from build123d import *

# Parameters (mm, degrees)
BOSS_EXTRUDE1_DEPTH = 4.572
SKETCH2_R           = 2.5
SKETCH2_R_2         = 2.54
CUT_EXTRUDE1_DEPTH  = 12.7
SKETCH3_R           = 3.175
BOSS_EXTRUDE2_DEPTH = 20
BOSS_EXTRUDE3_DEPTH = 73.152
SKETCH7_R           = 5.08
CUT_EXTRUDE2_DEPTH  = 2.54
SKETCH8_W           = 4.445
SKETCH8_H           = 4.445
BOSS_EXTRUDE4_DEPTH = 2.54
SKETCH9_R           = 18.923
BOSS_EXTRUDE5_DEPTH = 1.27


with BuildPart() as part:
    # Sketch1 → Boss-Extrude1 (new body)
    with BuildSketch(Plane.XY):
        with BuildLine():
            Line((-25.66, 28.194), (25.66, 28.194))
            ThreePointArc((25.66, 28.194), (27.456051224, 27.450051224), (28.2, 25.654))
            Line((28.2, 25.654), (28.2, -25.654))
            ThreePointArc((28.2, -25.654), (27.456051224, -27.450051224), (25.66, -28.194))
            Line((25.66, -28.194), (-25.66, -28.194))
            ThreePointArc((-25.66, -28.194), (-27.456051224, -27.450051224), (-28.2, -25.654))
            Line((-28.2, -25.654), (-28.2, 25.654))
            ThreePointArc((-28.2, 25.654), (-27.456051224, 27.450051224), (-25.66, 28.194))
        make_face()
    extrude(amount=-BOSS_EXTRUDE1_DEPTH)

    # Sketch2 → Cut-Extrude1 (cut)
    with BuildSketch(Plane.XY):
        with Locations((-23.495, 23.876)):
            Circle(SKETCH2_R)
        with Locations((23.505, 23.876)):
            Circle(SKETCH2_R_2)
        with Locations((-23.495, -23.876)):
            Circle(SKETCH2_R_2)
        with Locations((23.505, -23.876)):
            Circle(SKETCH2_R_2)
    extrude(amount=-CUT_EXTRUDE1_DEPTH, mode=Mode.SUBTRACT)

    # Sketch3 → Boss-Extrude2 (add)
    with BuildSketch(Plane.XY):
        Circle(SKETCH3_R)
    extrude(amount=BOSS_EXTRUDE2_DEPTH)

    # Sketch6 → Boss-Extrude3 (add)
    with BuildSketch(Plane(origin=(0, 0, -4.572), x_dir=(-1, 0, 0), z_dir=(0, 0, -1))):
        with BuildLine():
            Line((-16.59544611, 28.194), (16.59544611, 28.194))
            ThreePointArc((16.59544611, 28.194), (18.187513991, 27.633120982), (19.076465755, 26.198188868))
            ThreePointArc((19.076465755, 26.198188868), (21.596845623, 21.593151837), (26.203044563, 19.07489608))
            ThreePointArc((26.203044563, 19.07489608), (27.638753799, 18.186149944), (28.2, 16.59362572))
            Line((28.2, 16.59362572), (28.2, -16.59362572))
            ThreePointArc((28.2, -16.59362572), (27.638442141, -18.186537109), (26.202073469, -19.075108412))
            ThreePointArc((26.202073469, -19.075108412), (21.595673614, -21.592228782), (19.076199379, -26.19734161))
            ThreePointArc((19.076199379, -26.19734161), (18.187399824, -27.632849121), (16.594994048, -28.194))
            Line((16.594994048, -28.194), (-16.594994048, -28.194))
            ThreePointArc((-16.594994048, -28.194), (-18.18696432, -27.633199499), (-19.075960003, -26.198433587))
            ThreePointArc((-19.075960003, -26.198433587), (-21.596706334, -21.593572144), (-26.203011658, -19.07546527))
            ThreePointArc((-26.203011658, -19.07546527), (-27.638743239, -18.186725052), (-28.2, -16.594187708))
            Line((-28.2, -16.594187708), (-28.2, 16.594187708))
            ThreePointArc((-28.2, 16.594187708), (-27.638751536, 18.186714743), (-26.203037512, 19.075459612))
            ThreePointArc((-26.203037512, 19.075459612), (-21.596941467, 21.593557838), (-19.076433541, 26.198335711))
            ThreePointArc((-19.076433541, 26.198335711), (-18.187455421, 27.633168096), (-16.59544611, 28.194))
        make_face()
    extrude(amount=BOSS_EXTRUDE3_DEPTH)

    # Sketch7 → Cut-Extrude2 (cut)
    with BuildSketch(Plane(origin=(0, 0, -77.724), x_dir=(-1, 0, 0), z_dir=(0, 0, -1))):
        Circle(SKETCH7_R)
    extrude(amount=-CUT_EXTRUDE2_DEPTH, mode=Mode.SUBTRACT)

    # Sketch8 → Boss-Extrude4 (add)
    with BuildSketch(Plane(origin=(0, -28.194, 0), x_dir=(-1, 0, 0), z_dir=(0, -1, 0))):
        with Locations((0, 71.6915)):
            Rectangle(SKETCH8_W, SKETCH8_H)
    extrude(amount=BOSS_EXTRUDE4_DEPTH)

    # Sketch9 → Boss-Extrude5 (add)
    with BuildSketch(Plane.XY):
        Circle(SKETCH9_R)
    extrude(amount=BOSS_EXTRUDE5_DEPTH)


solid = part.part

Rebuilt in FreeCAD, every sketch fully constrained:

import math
import FreeCAD as App
import Part
import Sketcher
Q = App.Units.Quantity


def add_polygon(sketch, points):
    """Adds a closed chain of lines whose ends are joined by coincident constraints."""
    first, n = sketch.GeometryCount, len(points)
    for a, b in zip(points, points[1:] + points[:1]):
        sketch.addGeometry(Part.LineSegment(App.Vector(*a, 0), App.Vector(*b, 0)), False)
    for i in range(n):
        sketch.addConstraint(Sketcher.Constraint("Coincident", first + i, 2, first + (i + 1) % n, 1))

doc = App.newDocument("Part")
params = doc.addObject("Spreadsheet::Sheet", "Params")
for row, (alias, value) in enumerate([
    ("sketch1_radius", "0.1 in"),
    ("sketch1_height", "2.02 in"),
    ("pad1_length", "0.18 in"),
    ("sketch2_diameter", "0.2 in"),
    ("pocket1_length", "0.5 in"),
    ("sketch3_diameter", "0.25 in"),
    ("pad2_length", "20 mm"),
    ("sketch4_radius", "0.1 in"),
    ("pad3_length", "2.88 in"),
    ("sketch5_diameter", "0.4 in"),
    ("pocket2_length", "0.1 in"),
    ("sketch6_width", "0.175 in"),
    ("pad4_length", "0.1 in"),
    ("sketch7_diameter", "1.49 in"),
    ("pad5_length", "0.05 in"),
], start=1):
    params.set(f"A{row}", alias)
    params.set(f"B{row}", "=" + value)
    params.setAlias(f"B{row}", alias)

body = doc.addObject("PartDesign::Body", "Body")

# Sketch on XY plane
sketch1 = body.newObject("Sketcher::SketchObject", "Sketch")
sketch1.AttachmentSupport = (doc.getObject("XY_Plane"), [""])
sketch1.MapMode = "FlatFace"
sketch1.addGeometry([
    Part.LineSegment(App.Vector(25.7, 28.2, 0), App.Vector(-25.7, 28.2, 0)),  # 0
    Part.ArcOfCircle(Part.Circle(App.Vector(-25.7, 25.7, 0), App.Vector(0, 0, 1), 2.5), math.radians(90), math.radians(180)),  # 1
    Part.LineSegment(App.Vector(-28.2, 25.7, 0), App.Vector(-28.2, -25.7, 0)),  # 2
    Part.ArcOfCircle(Part.Circle(App.Vector(-25.7, -25.7, 0), App.Vector(0, 0, 1), 2.5), math.radians(-180), math.radians(-90)),  # 3
    Part.LineSegment(App.Vector(-25.7, -28.2, 0), App.Vector(25.7, -28.2, 0)),  # 4
    Part.ArcOfCircle(Part.Circle(App.Vector(25.7, -25.7, 0), App.Vector(0, 0, 1), 2.5), math.radians(-90), math.radians(0)),  # 5
    Part.LineSegment(App.Vector(28.2, -25.7, 0), App.Vector(28.2, 25.7, 0)),  # 6
    Part.ArcOfCircle(Part.Circle(App.Vector(25.7, 25.7, 0), App.Vector(0, 0, 1), 2.5), math.radians(0), math.radians(90)),  # 7
], False)
sketch1.addConstraint([
    Sketcher.Constraint("Tangent", 0, 2, 1, 1),
    Sketcher.Constraint("Tangent", 1, 2, 2, 1),
    Sketcher.Constraint("Tangent", 2, 2, 3, 1),
    Sketcher.Constraint("Tangent", 3, 2, 4, 1),
    Sketcher.Constraint("Tangent", 4, 2, 5, 1),
    Sketcher.Constraint("Tangent", 5, 2, 6, 1),
    Sketcher.Constraint("Tangent", 6, 2, 7, 1),
    Sketcher.Constraint("Tangent", 7, 2, 0, 1),
    Sketcher.Constraint("Horizontal", 0),
    Sketcher.Constraint("Vertical", 2),
    Sketcher.Constraint("Horizontal", 4),
    Sketcher.Constraint("Vertical", 6),
    Sketcher.Constraint("Equal", 1, 3),
    Sketcher.Constraint("Equal", 3, 5),
    Sketcher.Constraint("Equal", 5, 7),
    Sketcher.Constraint("Symmetric", 1, 3, 5, 3, -1, 1),
    Sketcher.Constraint("Radius", 1, Q("0.1 in")),
    Sketcher.Constraint("DistanceY", 2, 2, 2, 1, Q("2.02 in")),
    Sketcher.Constraint("DistanceX", 0, 2, 0, 1, 51.32),
])
sketch1.setExpression("Constraints[16]", "Params.sketch1_radius")
sketch1.setExpression("Constraints[17]", "Params.sketch1_height")
pad1 = body.newObject("PartDesign::Pad", "Pad")
pad1.Profile = sketch1
pad1.setExpression("Length", "Params.pad1_length")
pad1.Reversed = True

# Sketch on XY plane
sketch2 = body.newObject("Sketcher::SketchObject", "Sketch001")
sketch2.AttachmentSupport = (doc.getObject("XY_Plane"), [""])
sketch2.MapMode = "FlatFace"
sketch2.addGeometry([
    Part.Circle(App.Vector(-23.5, 23.9, 0), App.Vector(0, 0, 1), 2.5),
    Part.Circle(App.Vector(23.5, 23.9, 0), App.Vector(0, 0, 1), 2.5),
    Part.Circle(App.Vector(-23.5, -23.9, 0), App.Vector(0, 0, 1), 2.5),
    Part.Circle(App.Vector(23.5, -23.9, 0), App.Vector(0, 0, 1), 2.5),
], False)
sketch2.addConstraint([
    Sketcher.Constraint("Equal", 1, 2),
    Sketcher.Constraint("Equal", 2, 3),
    Sketcher.Constraint("Symmetric", 0, 3, 2, 3, -1),
    Sketcher.Constraint("Symmetric", 1, 3, 3, 3, -1),
    Sketcher.Constraint("Horizontal", 0, 3, 1, 3),
    Sketcher.Constraint("Diameter", 1, Q("0.2 in")),
    Sketcher.Constraint("Diameter", 0, 5.0),
    Sketcher.Constraint("DistanceY", -1, 1, 0, 3, Q("0.94 in")),
    Sketcher.Constraint("DistanceX", 0, 3, -1, 1, Q("0.925 in")),
    Sketcher.Constraint("DistanceX", -1, 1, 1, 3, 23.505),
])
sketch2.setExpression("Constraints[5]", "Params.sketch2_diameter")
pocket1 = body.newObject("PartDesign::Pocket", "Pocket")
pocket1.Profile = sketch2
pocket1.setExpression("Length", "Params.pocket1_length")

# Sketch on XY plane
sketch3 = body.newObject("Sketcher::SketchObject", "Sketch002")
sketch3.AttachmentSupport = (doc.getObject("XY_Plane"), [""])
sketch3.MapMode = "FlatFace"
sketch3.addGeometry(Part.Circle(App.Vector(0, 0, 0), App.Vector(0, 0, 1), 3.2), False)
sketch3.addConstraint([
    Sketcher.Constraint("Coincident", 0, 3, -1, 1),
    Sketcher.Constraint("Diameter", 0, Q("0.25 in")),
])
sketch3.setExpression("Constraints[1]", "Params.sketch3_diameter")
pad2 = body.newObject("PartDesign::Pad", "Pad001")
pad2.Profile = sketch3
pad2.setExpression("Length", "Params.pad2_length")

# Sketch on XY plane
sketch4 = body.newObject("Sketcher::SketchObject", "Sketch003")
sketch4.AttachmentSupport = (doc.getObject("XY_Plane"), [""])
sketch4.MapMode = "FlatFace"
sketch4.AttachmentOffset = App.Placement(App.Vector(0, 0, -0.18 * 25.4), App.Rotation())
sketch4.addGeometry([
    Part.LineSegment(App.Vector(-16.6, 28.2, 0), App.Vector(16.6, 28.2, 0)),  # 0
    Part.ArcOfCircle(Part.Circle(App.Vector(16.6, 25.7, 0), App.Vector(0, 0, 1), 2.5), math.radians(12), math.radians(90)),  # 1
    Part.ArcOfCircle(Part.Circle(App.Vector(28.2, 28.2, 0), App.Vector(0, 0, 1), 9.3), math.radians(-168), math.radians(-102)),  # 2
    Part.ArcOfCircle(Part.Circle(App.Vector(25.7, 16.6, 0), App.Vector(0, 0, 1), 2.5), math.radians(0), math.radians(78)),  # 3
    Part.LineSegment(App.Vector(28.2, 16.6, 0), App.Vector(28.2, -16.6, 0)),  # 4
    Part.ArcOfCircle(Part.Circle(App.Vector(25.7, -16.6, 0), App.Vector(0, 0, 1), 2.5), math.radians(-78), math.radians(0)),  # 5
    Part.ArcOfCircle(Part.Circle(App.Vector(28.2, -28.2, 0), App.Vector(0, 0, 1), 9.3), math.radians(102), math.radians(168)),  # 6
    Part.ArcOfCircle(Part.Circle(App.Vector(16.6, -25.7, 0), App.Vector(0, 0, 1), 2.5), math.radians(-90), math.radians(-12)),  # 7
    Part.LineSegment(App.Vector(16.6, -28.2, 0), App.Vector(-16.6, -28.2, 0)),  # 8
    Part.ArcOfCircle(Part.Circle(App.Vector(-16.6, -25.7, 0), App.Vector(0, 0, 1), 2.5), math.radians(-168), math.radians(-90)),  # 9
    Part.ArcOfCircle(Part.Circle(App.Vector(-28.2, -28.2, 0), App.Vector(0, 0, 1), 9.3), math.radians(12), math.radians(78)),  # 10
    Part.ArcOfCircle(Part.Circle(App.Vector(-25.7, -16.6, 0), App.Vector(0, 0, 1), 2.5), math.radians(180), math.radians(258)),  # 11
    Part.LineSegment(App.Vector(-28.2, -16.6, 0), App.Vector(-28.2, 16.6, 0)),  # 12
    Part.ArcOfCircle(Part.Circle(App.Vector(-25.7, 16.6, 0), App.Vector(0, 0, 1), 2.5), math.radians(102), math.radians(180)),  # 13
    Part.ArcOfCircle(Part.Circle(App.Vector(-28.2, 28.2, 0), App.Vector(0, 0, 1), 9.3), math.radians(-78), math.radians(-12)),  # 14
    Part.ArcOfCircle(Part.Circle(App.Vector(-16.6, 25.7, 0), App.Vector(0, 0, 1), 2.5), math.radians(90), math.radians(168)),  # 15
], False)
sketch4.addConstraint([
    Sketcher.Constraint("Tangent", 0, 2, 1, 2),
    Sketcher.Constraint("Tangent", 1, 1, 2, 1),
    Sketcher.Constraint("Tangent", 2, 2, 3, 2),
    Sketcher.Constraint("Tangent", 3, 1, 4, 1),
    Sketcher.Constraint("Tangent", 4, 2, 5, 2),
    Sketcher.Constraint("Tangent", 5, 1, 6, 1),
    Sketcher.Constraint("Tangent", 6, 2, 7, 2),
    Sketcher.Constraint("Tangent", 7, 1, 8, 1),
    Sketcher.Constraint("Tangent", 8, 2, 9, 2),
    Sketcher.Constraint("Tangent", 9, 1, 10, 1),
    Sketcher.Constraint("Tangent", 10, 2, 11, 2),
    Sketcher.Constraint("Tangent", 11, 1, 12, 1),
    Sketcher.Constraint("Tangent", 12, 2, 13, 2),
    Sketcher.Constraint("Tangent", 13, 1, 14, 1),
    Sketcher.Constraint("Tangent", 14, 2, 15, 2),
    Sketcher.Constraint("Tangent", 15, 1, 0, 1),
    Sketcher.Constraint("Horizontal", 0),
    Sketcher.Constraint("Vertical", 4),
    Sketcher.Constraint("Horizontal", 8),
    Sketcher.Constraint("Vertical", 12),
    Sketcher.Constraint("Equal", 1, 3),
    Sketcher.Constraint("Equal", 3, 5),
    Sketcher.Constraint("Equal", 5, 7),
    Sketcher.Constraint("Equal", 7, 9),
    Sketcher.Constraint("Equal", 9, 11),
    Sketcher.Constraint("Equal", 11, 13),
    Sketcher.Constraint("Equal", 13, 15),
    Sketcher.Constraint("Horizontal", 10, 3, 7, 1),
    Sketcher.Constraint("Vertical", 2, 3, 6, 3),
    Sketcher.Constraint("Vertical", 6, 3, 3, 1),
    Sketcher.Constraint("Vertical", 14, 3, 11, 1),
    Sketcher.Constraint("Radius", 1, Q("0.1 in")),
    Sketcher.Constraint("DistanceY", -1, 1, 1, 3, Q("1.01 in")),
    Sketcher.Constraint("DistanceY", 7, 3, -1, 1, Q("1.01 in")),
    Sketcher.Constraint("Radius", 2, 9.340579),
    Sketcher.Constraint("Radius", 10, 9.33393),
    Sketcher.Constraint("Radius", 6, 9.341145),
    Sketcher.Constraint("Radius", 14, 9.340425),
    Sketcher.Constraint("DistanceX", 8, 2, 8, 1, 33.189988),
    Sketcher.Constraint("DistanceY", 12, 1, 12, 2, 33.187251),
    Sketcher.Constraint("DistanceX", -1, 1, 2, 3, 28.2),
    Sketcher.Constraint("DistanceX", 11, 3, -1, 1, 25.66),
    Sketcher.Constraint("DistanceX", 9, 1, -1, 1, 19.076199),
    Sketcher.Constraint("DistanceX", 0, 1, 0, 2, 33.190892),
])
sketch4.setExpression("Constraints[31]", "Params.sketch4_radius")
pad3 = body.newObject("PartDesign::Pad", "Pad002")
pad3.Profile = sketch4
pad3.setExpression("Length", "Params.pad3_length")
pad3.Reversed = True

# Sketch on XY plane
sketch5 = body.newObject("Sketcher::SketchObject", "Sketch004")
sketch5.AttachmentSupport = (doc.getObject("XY_Plane"), [""])
sketch5.MapMode = "FlatFace"
sketch5.AttachmentOffset = App.Placement(App.Vector(0, 0, -3.06 * 25.4), App.Rotation())
sketch5.addGeometry(Part.Circle(App.Vector(0, 0, 0), App.Vector(0, 0, 1), 5), False)
sketch5.addConstraint([
    Sketcher.Constraint("Coincident", 0, 3, -1, 1),
    Sketcher.Constraint("Diameter", 0, Q("0.4 in")),
])
sketch5.setExpression("Constraints[1]", "Params.sketch5_diameter")
pocket2 = body.newObject("PartDesign::Pocket", "Pocket001")
pocket2.Profile = sketch5
pocket2.setExpression("Length", "Params.pocket2_length")
pocket2.Reversed = True

# Sketch on XZ plane
sketch6 = body.newObject("Sketcher::SketchObject", "Sketch005")
sketch6.AttachmentSupport = (doc.getObject("XZ_Plane"), [""])
sketch6.MapMode = "FlatFace"
sketch6.AttachmentOffset = App.Placement(App.Vector(0, 0, 1.11 * 25.4), App.Rotation())
add_polygon(sketch6, [(2.2, -73.9), (2.2, -69.5), (-2.2, -69.5), (-2.2, -73.9)])  # lines 0-3
sketch6.addConstraint([
    Sketcher.Constraint("Vertical", 0),
    Sketcher.Constraint("Horizontal", 1),
    Sketcher.Constraint("Vertical", 2),
    Sketcher.Constraint("Horizontal", 3),
    Sketcher.Constraint("Equal", 3, 0),
    Sketcher.Constraint("DistanceX", 1, 2, 1, 1, Q("0.175 in")),
    Sketcher.Constraint("DistanceY", 2, 2, -1, 1, Q("2.91 in")),
    Sketcher.Constraint("DistanceX", -1, 1, 0, 2, Q("0.0875 in")),
])
sketch6.setExpression("Constraints[9]", "Params.sketch6_width")
pad4 = body.newObject("PartDesign::Pad", "Pad003")
pad4.Profile = sketch6
pad4.setExpression("Length", "Params.pad4_length")

# Sketch on XY plane
sketch7 = body.newObject("Sketcher::SketchObject", "Sketch006")
sketch7.AttachmentSupport = (doc.getObject("XY_Plane"), [""])
sketch7.MapMode = "FlatFace"
sketch7.addGeometry(Part.Circle(App.Vector(0, 0, 0), App.Vector(0, 0, 1), 19), False)
sketch7.addConstraint([
    Sketcher.Constraint("Coincident", 0, 3, -1, 1),
    Sketcher.Constraint("Diameter", 0, Q("1.49 in")),
])
sketch7.setExpression("Constraints[1]", "Params.sketch7_diameter")
pad5 = body.newObject("PartDesign::Pad", "Pad004")
pad5.Profile = sketch7
pad5.setExpression("Length", "Params.pad5_length")

doc.recompute()
